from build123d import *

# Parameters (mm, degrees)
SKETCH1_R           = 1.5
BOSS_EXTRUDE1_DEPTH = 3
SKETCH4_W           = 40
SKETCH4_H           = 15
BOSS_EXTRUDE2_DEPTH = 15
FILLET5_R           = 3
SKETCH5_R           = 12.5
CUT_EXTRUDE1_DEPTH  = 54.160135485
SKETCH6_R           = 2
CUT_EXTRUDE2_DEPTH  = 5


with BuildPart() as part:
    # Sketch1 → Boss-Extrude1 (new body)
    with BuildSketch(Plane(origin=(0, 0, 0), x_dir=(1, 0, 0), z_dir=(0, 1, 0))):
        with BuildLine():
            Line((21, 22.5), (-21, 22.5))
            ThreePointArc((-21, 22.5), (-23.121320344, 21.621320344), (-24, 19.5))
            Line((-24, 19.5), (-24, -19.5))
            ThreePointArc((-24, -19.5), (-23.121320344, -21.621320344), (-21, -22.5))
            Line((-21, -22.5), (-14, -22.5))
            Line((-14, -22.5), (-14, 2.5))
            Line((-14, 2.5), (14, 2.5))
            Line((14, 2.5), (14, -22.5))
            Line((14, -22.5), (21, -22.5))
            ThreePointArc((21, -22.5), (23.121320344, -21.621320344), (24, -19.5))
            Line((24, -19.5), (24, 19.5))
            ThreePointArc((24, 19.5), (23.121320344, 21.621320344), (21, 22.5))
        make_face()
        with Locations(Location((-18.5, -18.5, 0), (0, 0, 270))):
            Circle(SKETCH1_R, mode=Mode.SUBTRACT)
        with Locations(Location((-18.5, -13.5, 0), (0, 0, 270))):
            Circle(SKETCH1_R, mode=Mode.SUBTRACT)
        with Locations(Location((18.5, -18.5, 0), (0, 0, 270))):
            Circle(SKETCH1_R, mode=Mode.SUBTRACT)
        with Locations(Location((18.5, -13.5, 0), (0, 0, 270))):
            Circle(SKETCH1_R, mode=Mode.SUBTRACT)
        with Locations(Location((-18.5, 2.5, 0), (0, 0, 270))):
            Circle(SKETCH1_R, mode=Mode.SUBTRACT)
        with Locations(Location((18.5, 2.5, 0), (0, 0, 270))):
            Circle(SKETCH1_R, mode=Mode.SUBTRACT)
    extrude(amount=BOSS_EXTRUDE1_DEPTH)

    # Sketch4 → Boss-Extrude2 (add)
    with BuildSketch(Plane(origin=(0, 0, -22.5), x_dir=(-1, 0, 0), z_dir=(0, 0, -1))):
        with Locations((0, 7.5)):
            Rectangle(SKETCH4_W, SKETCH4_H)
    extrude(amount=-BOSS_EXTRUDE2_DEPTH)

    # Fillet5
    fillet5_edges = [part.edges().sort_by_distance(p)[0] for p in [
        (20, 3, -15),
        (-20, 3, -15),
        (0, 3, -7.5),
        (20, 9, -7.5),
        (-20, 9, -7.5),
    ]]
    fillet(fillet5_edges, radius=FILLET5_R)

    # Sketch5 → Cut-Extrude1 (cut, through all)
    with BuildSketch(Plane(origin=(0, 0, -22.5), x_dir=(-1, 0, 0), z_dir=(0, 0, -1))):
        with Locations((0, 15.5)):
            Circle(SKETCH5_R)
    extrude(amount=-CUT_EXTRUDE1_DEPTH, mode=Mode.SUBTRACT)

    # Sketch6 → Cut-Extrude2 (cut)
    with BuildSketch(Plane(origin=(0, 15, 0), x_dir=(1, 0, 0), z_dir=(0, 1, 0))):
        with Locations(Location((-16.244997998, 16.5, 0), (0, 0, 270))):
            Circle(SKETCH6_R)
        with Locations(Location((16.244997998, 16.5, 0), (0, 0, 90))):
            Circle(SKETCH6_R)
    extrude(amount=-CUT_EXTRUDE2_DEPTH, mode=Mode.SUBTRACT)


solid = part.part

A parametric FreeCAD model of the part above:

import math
import FreeCAD as App
import Part
import Sketcher
Q = App.Units.Quantity


def edges_at(feature, points):
    """Names of the edges that pass closest to the given points."""
    edges = feature.Shape.Edges
    near = lambda p: min(range(len(edges)), key=lambda i: edges[i].distToShape(Part.Vertex(*p))[0])
    return sorted({f"Edge{near(p) + 1}" for p in points})


def add_polygon(sketch, points):
    """Adds a closed chain of lines whose ends are joined by coincident constraints."""
    first, n = sketch.GeometryCount, len(points)
    for a, b in zip(points, points[1:] + points[:1]):
        sketch.addGeometry(Part.LineSegment(App.Vector(*a, 0), App.Vector(*b, 0)), False)
    for i in range(n):
        sketch.addConstraint(Sketcher.Constraint("Coincident", first + i, 2, first + (i + 1) % n, 1))

doc = App.newDocument("Part")
body = doc.addObject("PartDesign::Body", "Body")

sketch1 = body.newObject("Sketcher::SketchObject", "Sketch")
sketch1.AttachmentSupport = (doc.getObject("XZ_Plane"), [""])
sketch1.MapMode = "FlatFace"
sketch1.addGeometry([
    Part.LineSegment(App.Vector(21, -22.5, 0), App.Vector(-21, -22.5, 0)),
    Part.ArcOfCircle(Part.Circle(App.Vector(-21, -19.5, 0), App.Vector(0, 0, 1), 3), math.radians(180), math.radians(270)),
    Part.LineSegment(App.Vector(-24, -19.5, 0), App.Vector(-24, 19.5, 0)),
    Part.ArcOfCircle(Part.Circle(App.Vector(-21, 19.5, 0), App.Vector(0, 0, 1), 3), math.radians(90), math.radians(180)),
    Part.LineSegment(App.Vector(-21, 22.5, 0), App.Vector(-14, 22.5, 0)),
    Part.LineSegment(App.Vector(-14, 22.5, 0), App.Vector(-14, -2.5, 0)),
    Part.LineSegment(App.Vector(-14, -2.5, 0), App.Vector(14, -2.5, 0)),
    Part.LineSegment(App.Vector(14, -2.5, 0), App.Vector(14, 22.5, 0)),
    Part.LineSegment(App.Vector(14, 22.5, 0), App.Vector(21, 22.5, 0)),
    Part.ArcOfCircle(Part.Circle(App.Vector(21, 19.5, 0), App.Vector(0, 0, 1), 3), math.radians(0), math.radians(90)),
    Part.LineSegment(App.Vector(24, 19.5, 0), App.Vector(24, -19.5, 0)),
    Part.ArcOfCircle(Part.Circle(App.Vector(21, -19.5, 0), App.Vector(0, 0, 1), 3), math.radians(-90), math.radians(0)),
    Part.Circle(App.Vector(-18.5, 18.5, 0), App.Vector(0, 0, 1), 1.5),
    Part.Circle(App.Vector(-18.5, 13.5, 0), App.Vector(0, 0, 1), 1.5),
    Part.Circle(App.Vector(18.5, 18.5, 0), App.Vector(0, 0, 1), 1.5),
    Part.Circle(App.Vector(18.5, 13.5, 0), App.Vector(0, 0, 1), 1.5),
    Part.Circle(App.Vector(-18.5, -2.5, 0), App.Vector(0, 0, 1), 1.5),
    Part.Circle(App.Vector(18.5, -2.5, 0), App.Vector(0, 0, 1), 1.5),
], False)
sketch1.addConstraint([
    Sketcher.Constraint("Tangent", 0, 2, 1, 2),
    Sketcher.Constraint("Tangent", 1, 1, 2, 1),
    Sketcher.Constraint("Tangent", 2, 2, 3, 2),
    Sketcher.Constraint("Tangent", 3, 1, 4, 1),
    Sketcher.Constraint("Coincident", 4, 2, 5, 1),
    Sketcher.Constraint("Coincident", 5, 2, 6, 1),
    Sketcher.Constraint("Coincident", 6, 2, 7, 1),
    Sketcher.Constraint("Coincident", 7, 2, 8, 1),
    Sketcher.Constraint("Tangent", 8, 2, 9, 2),
    Sketcher.Constraint("Tangent", 9, 1, 10, 1),
    Sketcher.Constraint("Tangent", 10, 2, 11, 2),
    Sketcher.Constraint("Tangent", 11, 1, 0, 1),
    Sketcher.Constraint("Horizontal", 0),
    Sketcher.Constraint("Vertical", 2),
    Sketcher.Constraint("Horizontal", 4),
    Sketcher.Constraint("Vertical", 5),
    Sketcher.Constraint("Horizontal", 6),
    Sketcher.Constraint("Vertical", 7),
    Sketcher.Constraint("Horizontal", 8),
    Sketcher.Constraint("Vertical", 10),
    Sketcher.Constraint("Equal", 1, 3),
    Sketcher.Constraint("Equal", 3, 9),
    Sketcher.Constraint("Equal", 9, 11),
    Sketcher.Constraint("Equal", 12, 13),
    Sketcher.Constraint("Equal", 13, 14),
    Sketcher.Constraint("Equal", 14, 15),
    Sketcher.Constraint("Equal", 15, 16),
    Sketcher.Constraint("Equal", 16, 17),
    Sketcher.Constraint("Symmetric", 1, 3, 9, 3, -1, 1),
    Sketcher.Constraint("Symmetric", 12, 3, 14, 3, -2),
    Sketcher.Constraint("Symmetric", 13, 3, 15, 3, -2),
    Sketcher.Constraint("Symmetric", 16, 3, 17, 3, -2),
    Sketcher.Constraint("Symmetric", 4, 2, 7, 2, -2),
    Sketcher.Constraint("Horizontal", 17, 3, 5, 2),
    Sketcher.Constraint("Vertical", 12, 3, 13, 3),
    Sketcher.Constraint("Vertical", 13, 3, 16, 3),
    Sketcher.Constraint("Diameter", 12, Q("3 mm")),
    Sketcher.Constraint("Radius", 1, Q("3 mm")),
    Sketcher.Constraint("DistanceX", 0, 2, 0, 1, Q("42 mm")),
    Sketcher.Constraint("DistanceX", 4, 1, 4, 2, Q("7 mm")),
    Sketcher.Constraint("DistanceY", 2, 1, 2, 2, Q("39 mm")),
    Sketcher.Constraint("DistanceY", 5, 2, 5, 1, Q("25 mm")),
    Sketcher.Constraint("DistanceY", 12, 3, 3, 3, Q("1 mm")),
    Sketcher.Constraint("DistanceY", 13, 3, 12, 3, Q("5 mm")),
    Sketcher.Constraint("DistanceX", 12, 3, 14, 3, Q("37 mm")),
])
pad1 = body.newObject("PartDesign::Pad", "Pad")
pad1.Profile = sketch1
pad1.Length = 3
pad1.Reversed = True

sketch2 = body.newObject("Sketcher::SketchObject", "Sketch001")
sketch2.AttachmentSupport = (doc.getObject("XY_Plane"), [""])
sketch2.MapMode = "FlatFace"
sketch2.AttachmentOffset = App.Placement(App.Vector(0, 0, -22.5), App.Rotation())
add_polygon(sketch2, [(20, 15), (20, 0), (-20, 0), (-20, 15)])
sketch2.addConstraint([
    Sketcher.Constraint("Vertical", 0),
    Sketcher.Constraint("Horizontal", 1),
    Sketcher.Constraint("Vertical", 2),
    Sketcher.Constraint("Horizontal", 3),
    Sketcher.Constraint("Symmetric", 0, 2, 1, 2, -1, 1),
    Sketcher.Constraint("DistanceX", 1, 2, 1, 1, Q("40 mm")),
    Sketcher.Constraint("DistanceY", 0, 2, 0, 1, Q("15 mm")),
])
pad2 = body.newObject("PartDesign::Pad", "Pad001")
pad2.Profile = sketch2
pad2.Length = 15
doc.recompute()

fillet = body.newObject("PartDesign::Fillet", "Fillet")
fillet.Base = (pad2, edges_at(pad2, [
    (20, 3, -15),
    (-20, 3, -15),
    (0, 3, -7.5),
    (20, 9, -7.5),
    (-20, 9, -7.5),
]))
fillet.Radius = 3

sketch3 = body.newObject("Sketcher::SketchObject", "Sketch002")
sketch3.AttachmentSupport = (doc.getObject("XY_Plane"), [""])
sketch3.MapMode = "FlatFace"
sketch3.AttachmentOffset = App.Placement(App.Vector(0, 0, -22.5), App.Rotation())
sketch3.addGeometry(Part.Circle(App.Vector(0, 16, 0), App.Vector(0, 0, 1), 12), False)
sketch3.addConstraint([
    Sketcher.Constraint("PointOnObject", 0, 3, -2),
    Sketcher.Constraint("Diameter", 0, Q("25 mm")),
    Sketcher.Constraint("DistanceY", -1, 1, 0, 3, Q("15.5 mm")),
])
pocket1 = body.newObject("PartDesign::Pocket", "Pocket")
pocket1.Profile = sketch3
pocket1.Type = "ThroughAll"
pocket1.Reversed = True

sketch4 = body.newObject("Sketcher::SketchObject", "Sketch003")
sketch4.AttachmentSupport = (doc.getObject("XZ_Plane"), [""])
sketch4.MapMode = "FlatFace"
sketch4.AttachmentOffset = App.Placement(App.Vector(0, 0, -15), App.Rotation())
sketch4.addGeometry([
    Part.Circle(App.Vector(-16.2, -16.5, 0), App.Vector(0, 0, 1), 2),
    Part.Circle(App.Vector(16.2, -16.5, 0), App.Vector(0, 0, 1), 2),
], False)
sketch4.addConstraint([
    Sketcher.Constraint("Equal", 0, 1),
    Sketcher.Constraint("Symmetric", 0, 3, 1, 3, -2),
    Sketcher.Constraint("Diameter", 0, Q("4 mm")),
    Sketcher.Constraint("DistanceY", 0, 3, -1, 1, Q("16.5 mm")),
    Sketcher.Constraint("DistanceX", 0, 3, -1, 1, Q("16.244998 mm")),
])
pocket2 = body.newObject("PartDesign::Pocket", "Pocket001")
pocket2.Profile = sketch4
pocket2.Length = 5
pocket2.Reversed = True

doc.recompute()
